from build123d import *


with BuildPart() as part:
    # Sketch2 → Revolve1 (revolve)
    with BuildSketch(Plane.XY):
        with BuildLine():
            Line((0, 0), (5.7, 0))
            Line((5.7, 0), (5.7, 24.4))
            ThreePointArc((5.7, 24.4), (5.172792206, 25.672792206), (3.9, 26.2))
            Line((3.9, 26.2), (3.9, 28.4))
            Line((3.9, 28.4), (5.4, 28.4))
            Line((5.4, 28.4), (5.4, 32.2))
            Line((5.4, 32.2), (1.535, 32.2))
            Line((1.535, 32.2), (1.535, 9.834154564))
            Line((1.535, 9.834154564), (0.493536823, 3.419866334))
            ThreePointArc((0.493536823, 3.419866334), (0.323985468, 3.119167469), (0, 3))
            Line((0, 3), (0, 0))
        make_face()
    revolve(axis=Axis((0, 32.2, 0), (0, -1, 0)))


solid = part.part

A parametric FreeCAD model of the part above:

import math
import FreeCAD as App
import Part
import Sketcher

V = App.Vector

doc = App.newDocument("Part")
body = doc.addObject("PartDesign::Body", "Body")

# Sketch on XY plane
sketch1 = body.newObject("Sketcher::SketchObject", "Sketch")
sketch1.AttachmentSupport = (doc.getObject("XY_Plane"), [""])
sketch1.MapMode = "FlatFace"
sketch1.addGeometry([
    Part.LineSegment(V(0, 0, 0), V(5.7, 0, 0)),  # 0
    Part.LineSegment(V(5.7, 0, 0), V(5.7, 24.4, 0)),  # 1
    Part.ArcOfCircle(Part.Circle(V(3.9, 24.4, 0), V(0, 0, 1), 1.8), math.radians(0), math.radians(90)),  # 2
    Part.LineSegment(V(3.9, 26.2, 0), V(3.9, 28.4, 0)),  # 3
    Part.LineSegment(V(3.9, 28.4, 0), V(5.4, 28.4, 0)),  # 4
    Part.LineSegment(V(5.4, 28.4, 0), V(5.4, 32.2, 0)),  # 5
    Part.LineSegment(V(5.4, 32.2, 0), V(1.5, 32.2, 0)),  # 6
    Part.LineSegment(V(1.5, 32.2, 0), V(1.5, 9.8, 0)),  # 7
    Part.LineSegment(V(1.5, 9.8, 0), V(0.5, 3.4, 0)),  # 8
    Part.ArcOfCircle(Part.Circle(V(0, 3.5, 0), V(0, 0, 1), 0.5), math.radians(-90), math.radians(-9)),  # 9
    Part.LineSegment(V(0, 3, 0), V(0, 0, 0)),  # 10
], False)
sketch1.addConstraint([
    Sketcher.Constraint("Coincident", 0, 2, 1, 1),
    Sketcher.Constraint("Tangent", 1, 2, 2, 1),
    Sketcher.Constraint("Coincident", 2, 2, 3, 1),
    Sketcher.Constraint("Coincident", 3, 2, 4, 1),
    Sketcher.Constraint("Coincident", 4, 2, 5, 1),
    Sketcher.Constraint("Coincident", 5, 2, 6, 1),
    Sketcher.Constraint("Coincident", 6, 2, 7, 1),
    Sketcher.Constraint("Coincident", 7, 2, 8, 1),
    Sketcher.Constraint("Tangent", 8, 2, 9, 2),
    Sketcher.Constraint("Coincident", 9, 1, 10, 1),
    Sketcher.Constraint("Coincident", 10, 2, 0, 1),
    Sketcher.Constraint("Horizontal", 0),
    Sketcher.Constraint("Vertical", 1),
    Sketcher.Constraint("Vertical", 3),
    Sketcher.Constraint("Horizontal", 4),
    Sketcher.Constraint("Vertical", 5),
    Sketcher.Constraint("Horizontal", 6),
    Sketcher.Constraint("Vertical", 7),
    Sketcher.Constraint("Vertical", 10),
    Sketcher.Constraint("Coincident", 10, 2, -1, 1),
    Sketcher.Constraint("PointOnObject", 9, 3, -2),
    Sketcher.Constraint("Radius", 2, 1.8),
    Sketcher.Constraint("Radius", 9, 0.5),
    Sketcher.Constraint("DistanceY", 10, 2, 10, 1, 3.0),
    Sketcher.Constraint("DistanceX", 0, 1, 0, 2, 5.7),
    Sketcher.Constraint("DistanceX", 4, 1, 4, 2, 1.5),
    Sketcher.Constraint("DistanceY", 1, 1, 1, 2, 24.4),
    Sketcher.Constraint("DistanceY", 3, 1, 3, 2, 2.2),
    Sketcher.Constraint("DistanceY", 5, 1, 5, 2, 3.8),
    Sketcher.Constraint("DistanceX", -1, 1, 2, 2, 3.9),
    Sketcher.Constraint("DistanceX", 6, 2, 6, 1, 3.865),
    Sketcher.Constraint("DistanceY", 7, 2, 7, 1, 22.365845),
])
revolution = body.newObject("PartDesign::Revolution", "Revolution")
revolution.Profile = sketch1
revolution.ReferenceAxis = (sketch1, ["V_Axis"])
revolution.Angle = 360

doc.recompute()
